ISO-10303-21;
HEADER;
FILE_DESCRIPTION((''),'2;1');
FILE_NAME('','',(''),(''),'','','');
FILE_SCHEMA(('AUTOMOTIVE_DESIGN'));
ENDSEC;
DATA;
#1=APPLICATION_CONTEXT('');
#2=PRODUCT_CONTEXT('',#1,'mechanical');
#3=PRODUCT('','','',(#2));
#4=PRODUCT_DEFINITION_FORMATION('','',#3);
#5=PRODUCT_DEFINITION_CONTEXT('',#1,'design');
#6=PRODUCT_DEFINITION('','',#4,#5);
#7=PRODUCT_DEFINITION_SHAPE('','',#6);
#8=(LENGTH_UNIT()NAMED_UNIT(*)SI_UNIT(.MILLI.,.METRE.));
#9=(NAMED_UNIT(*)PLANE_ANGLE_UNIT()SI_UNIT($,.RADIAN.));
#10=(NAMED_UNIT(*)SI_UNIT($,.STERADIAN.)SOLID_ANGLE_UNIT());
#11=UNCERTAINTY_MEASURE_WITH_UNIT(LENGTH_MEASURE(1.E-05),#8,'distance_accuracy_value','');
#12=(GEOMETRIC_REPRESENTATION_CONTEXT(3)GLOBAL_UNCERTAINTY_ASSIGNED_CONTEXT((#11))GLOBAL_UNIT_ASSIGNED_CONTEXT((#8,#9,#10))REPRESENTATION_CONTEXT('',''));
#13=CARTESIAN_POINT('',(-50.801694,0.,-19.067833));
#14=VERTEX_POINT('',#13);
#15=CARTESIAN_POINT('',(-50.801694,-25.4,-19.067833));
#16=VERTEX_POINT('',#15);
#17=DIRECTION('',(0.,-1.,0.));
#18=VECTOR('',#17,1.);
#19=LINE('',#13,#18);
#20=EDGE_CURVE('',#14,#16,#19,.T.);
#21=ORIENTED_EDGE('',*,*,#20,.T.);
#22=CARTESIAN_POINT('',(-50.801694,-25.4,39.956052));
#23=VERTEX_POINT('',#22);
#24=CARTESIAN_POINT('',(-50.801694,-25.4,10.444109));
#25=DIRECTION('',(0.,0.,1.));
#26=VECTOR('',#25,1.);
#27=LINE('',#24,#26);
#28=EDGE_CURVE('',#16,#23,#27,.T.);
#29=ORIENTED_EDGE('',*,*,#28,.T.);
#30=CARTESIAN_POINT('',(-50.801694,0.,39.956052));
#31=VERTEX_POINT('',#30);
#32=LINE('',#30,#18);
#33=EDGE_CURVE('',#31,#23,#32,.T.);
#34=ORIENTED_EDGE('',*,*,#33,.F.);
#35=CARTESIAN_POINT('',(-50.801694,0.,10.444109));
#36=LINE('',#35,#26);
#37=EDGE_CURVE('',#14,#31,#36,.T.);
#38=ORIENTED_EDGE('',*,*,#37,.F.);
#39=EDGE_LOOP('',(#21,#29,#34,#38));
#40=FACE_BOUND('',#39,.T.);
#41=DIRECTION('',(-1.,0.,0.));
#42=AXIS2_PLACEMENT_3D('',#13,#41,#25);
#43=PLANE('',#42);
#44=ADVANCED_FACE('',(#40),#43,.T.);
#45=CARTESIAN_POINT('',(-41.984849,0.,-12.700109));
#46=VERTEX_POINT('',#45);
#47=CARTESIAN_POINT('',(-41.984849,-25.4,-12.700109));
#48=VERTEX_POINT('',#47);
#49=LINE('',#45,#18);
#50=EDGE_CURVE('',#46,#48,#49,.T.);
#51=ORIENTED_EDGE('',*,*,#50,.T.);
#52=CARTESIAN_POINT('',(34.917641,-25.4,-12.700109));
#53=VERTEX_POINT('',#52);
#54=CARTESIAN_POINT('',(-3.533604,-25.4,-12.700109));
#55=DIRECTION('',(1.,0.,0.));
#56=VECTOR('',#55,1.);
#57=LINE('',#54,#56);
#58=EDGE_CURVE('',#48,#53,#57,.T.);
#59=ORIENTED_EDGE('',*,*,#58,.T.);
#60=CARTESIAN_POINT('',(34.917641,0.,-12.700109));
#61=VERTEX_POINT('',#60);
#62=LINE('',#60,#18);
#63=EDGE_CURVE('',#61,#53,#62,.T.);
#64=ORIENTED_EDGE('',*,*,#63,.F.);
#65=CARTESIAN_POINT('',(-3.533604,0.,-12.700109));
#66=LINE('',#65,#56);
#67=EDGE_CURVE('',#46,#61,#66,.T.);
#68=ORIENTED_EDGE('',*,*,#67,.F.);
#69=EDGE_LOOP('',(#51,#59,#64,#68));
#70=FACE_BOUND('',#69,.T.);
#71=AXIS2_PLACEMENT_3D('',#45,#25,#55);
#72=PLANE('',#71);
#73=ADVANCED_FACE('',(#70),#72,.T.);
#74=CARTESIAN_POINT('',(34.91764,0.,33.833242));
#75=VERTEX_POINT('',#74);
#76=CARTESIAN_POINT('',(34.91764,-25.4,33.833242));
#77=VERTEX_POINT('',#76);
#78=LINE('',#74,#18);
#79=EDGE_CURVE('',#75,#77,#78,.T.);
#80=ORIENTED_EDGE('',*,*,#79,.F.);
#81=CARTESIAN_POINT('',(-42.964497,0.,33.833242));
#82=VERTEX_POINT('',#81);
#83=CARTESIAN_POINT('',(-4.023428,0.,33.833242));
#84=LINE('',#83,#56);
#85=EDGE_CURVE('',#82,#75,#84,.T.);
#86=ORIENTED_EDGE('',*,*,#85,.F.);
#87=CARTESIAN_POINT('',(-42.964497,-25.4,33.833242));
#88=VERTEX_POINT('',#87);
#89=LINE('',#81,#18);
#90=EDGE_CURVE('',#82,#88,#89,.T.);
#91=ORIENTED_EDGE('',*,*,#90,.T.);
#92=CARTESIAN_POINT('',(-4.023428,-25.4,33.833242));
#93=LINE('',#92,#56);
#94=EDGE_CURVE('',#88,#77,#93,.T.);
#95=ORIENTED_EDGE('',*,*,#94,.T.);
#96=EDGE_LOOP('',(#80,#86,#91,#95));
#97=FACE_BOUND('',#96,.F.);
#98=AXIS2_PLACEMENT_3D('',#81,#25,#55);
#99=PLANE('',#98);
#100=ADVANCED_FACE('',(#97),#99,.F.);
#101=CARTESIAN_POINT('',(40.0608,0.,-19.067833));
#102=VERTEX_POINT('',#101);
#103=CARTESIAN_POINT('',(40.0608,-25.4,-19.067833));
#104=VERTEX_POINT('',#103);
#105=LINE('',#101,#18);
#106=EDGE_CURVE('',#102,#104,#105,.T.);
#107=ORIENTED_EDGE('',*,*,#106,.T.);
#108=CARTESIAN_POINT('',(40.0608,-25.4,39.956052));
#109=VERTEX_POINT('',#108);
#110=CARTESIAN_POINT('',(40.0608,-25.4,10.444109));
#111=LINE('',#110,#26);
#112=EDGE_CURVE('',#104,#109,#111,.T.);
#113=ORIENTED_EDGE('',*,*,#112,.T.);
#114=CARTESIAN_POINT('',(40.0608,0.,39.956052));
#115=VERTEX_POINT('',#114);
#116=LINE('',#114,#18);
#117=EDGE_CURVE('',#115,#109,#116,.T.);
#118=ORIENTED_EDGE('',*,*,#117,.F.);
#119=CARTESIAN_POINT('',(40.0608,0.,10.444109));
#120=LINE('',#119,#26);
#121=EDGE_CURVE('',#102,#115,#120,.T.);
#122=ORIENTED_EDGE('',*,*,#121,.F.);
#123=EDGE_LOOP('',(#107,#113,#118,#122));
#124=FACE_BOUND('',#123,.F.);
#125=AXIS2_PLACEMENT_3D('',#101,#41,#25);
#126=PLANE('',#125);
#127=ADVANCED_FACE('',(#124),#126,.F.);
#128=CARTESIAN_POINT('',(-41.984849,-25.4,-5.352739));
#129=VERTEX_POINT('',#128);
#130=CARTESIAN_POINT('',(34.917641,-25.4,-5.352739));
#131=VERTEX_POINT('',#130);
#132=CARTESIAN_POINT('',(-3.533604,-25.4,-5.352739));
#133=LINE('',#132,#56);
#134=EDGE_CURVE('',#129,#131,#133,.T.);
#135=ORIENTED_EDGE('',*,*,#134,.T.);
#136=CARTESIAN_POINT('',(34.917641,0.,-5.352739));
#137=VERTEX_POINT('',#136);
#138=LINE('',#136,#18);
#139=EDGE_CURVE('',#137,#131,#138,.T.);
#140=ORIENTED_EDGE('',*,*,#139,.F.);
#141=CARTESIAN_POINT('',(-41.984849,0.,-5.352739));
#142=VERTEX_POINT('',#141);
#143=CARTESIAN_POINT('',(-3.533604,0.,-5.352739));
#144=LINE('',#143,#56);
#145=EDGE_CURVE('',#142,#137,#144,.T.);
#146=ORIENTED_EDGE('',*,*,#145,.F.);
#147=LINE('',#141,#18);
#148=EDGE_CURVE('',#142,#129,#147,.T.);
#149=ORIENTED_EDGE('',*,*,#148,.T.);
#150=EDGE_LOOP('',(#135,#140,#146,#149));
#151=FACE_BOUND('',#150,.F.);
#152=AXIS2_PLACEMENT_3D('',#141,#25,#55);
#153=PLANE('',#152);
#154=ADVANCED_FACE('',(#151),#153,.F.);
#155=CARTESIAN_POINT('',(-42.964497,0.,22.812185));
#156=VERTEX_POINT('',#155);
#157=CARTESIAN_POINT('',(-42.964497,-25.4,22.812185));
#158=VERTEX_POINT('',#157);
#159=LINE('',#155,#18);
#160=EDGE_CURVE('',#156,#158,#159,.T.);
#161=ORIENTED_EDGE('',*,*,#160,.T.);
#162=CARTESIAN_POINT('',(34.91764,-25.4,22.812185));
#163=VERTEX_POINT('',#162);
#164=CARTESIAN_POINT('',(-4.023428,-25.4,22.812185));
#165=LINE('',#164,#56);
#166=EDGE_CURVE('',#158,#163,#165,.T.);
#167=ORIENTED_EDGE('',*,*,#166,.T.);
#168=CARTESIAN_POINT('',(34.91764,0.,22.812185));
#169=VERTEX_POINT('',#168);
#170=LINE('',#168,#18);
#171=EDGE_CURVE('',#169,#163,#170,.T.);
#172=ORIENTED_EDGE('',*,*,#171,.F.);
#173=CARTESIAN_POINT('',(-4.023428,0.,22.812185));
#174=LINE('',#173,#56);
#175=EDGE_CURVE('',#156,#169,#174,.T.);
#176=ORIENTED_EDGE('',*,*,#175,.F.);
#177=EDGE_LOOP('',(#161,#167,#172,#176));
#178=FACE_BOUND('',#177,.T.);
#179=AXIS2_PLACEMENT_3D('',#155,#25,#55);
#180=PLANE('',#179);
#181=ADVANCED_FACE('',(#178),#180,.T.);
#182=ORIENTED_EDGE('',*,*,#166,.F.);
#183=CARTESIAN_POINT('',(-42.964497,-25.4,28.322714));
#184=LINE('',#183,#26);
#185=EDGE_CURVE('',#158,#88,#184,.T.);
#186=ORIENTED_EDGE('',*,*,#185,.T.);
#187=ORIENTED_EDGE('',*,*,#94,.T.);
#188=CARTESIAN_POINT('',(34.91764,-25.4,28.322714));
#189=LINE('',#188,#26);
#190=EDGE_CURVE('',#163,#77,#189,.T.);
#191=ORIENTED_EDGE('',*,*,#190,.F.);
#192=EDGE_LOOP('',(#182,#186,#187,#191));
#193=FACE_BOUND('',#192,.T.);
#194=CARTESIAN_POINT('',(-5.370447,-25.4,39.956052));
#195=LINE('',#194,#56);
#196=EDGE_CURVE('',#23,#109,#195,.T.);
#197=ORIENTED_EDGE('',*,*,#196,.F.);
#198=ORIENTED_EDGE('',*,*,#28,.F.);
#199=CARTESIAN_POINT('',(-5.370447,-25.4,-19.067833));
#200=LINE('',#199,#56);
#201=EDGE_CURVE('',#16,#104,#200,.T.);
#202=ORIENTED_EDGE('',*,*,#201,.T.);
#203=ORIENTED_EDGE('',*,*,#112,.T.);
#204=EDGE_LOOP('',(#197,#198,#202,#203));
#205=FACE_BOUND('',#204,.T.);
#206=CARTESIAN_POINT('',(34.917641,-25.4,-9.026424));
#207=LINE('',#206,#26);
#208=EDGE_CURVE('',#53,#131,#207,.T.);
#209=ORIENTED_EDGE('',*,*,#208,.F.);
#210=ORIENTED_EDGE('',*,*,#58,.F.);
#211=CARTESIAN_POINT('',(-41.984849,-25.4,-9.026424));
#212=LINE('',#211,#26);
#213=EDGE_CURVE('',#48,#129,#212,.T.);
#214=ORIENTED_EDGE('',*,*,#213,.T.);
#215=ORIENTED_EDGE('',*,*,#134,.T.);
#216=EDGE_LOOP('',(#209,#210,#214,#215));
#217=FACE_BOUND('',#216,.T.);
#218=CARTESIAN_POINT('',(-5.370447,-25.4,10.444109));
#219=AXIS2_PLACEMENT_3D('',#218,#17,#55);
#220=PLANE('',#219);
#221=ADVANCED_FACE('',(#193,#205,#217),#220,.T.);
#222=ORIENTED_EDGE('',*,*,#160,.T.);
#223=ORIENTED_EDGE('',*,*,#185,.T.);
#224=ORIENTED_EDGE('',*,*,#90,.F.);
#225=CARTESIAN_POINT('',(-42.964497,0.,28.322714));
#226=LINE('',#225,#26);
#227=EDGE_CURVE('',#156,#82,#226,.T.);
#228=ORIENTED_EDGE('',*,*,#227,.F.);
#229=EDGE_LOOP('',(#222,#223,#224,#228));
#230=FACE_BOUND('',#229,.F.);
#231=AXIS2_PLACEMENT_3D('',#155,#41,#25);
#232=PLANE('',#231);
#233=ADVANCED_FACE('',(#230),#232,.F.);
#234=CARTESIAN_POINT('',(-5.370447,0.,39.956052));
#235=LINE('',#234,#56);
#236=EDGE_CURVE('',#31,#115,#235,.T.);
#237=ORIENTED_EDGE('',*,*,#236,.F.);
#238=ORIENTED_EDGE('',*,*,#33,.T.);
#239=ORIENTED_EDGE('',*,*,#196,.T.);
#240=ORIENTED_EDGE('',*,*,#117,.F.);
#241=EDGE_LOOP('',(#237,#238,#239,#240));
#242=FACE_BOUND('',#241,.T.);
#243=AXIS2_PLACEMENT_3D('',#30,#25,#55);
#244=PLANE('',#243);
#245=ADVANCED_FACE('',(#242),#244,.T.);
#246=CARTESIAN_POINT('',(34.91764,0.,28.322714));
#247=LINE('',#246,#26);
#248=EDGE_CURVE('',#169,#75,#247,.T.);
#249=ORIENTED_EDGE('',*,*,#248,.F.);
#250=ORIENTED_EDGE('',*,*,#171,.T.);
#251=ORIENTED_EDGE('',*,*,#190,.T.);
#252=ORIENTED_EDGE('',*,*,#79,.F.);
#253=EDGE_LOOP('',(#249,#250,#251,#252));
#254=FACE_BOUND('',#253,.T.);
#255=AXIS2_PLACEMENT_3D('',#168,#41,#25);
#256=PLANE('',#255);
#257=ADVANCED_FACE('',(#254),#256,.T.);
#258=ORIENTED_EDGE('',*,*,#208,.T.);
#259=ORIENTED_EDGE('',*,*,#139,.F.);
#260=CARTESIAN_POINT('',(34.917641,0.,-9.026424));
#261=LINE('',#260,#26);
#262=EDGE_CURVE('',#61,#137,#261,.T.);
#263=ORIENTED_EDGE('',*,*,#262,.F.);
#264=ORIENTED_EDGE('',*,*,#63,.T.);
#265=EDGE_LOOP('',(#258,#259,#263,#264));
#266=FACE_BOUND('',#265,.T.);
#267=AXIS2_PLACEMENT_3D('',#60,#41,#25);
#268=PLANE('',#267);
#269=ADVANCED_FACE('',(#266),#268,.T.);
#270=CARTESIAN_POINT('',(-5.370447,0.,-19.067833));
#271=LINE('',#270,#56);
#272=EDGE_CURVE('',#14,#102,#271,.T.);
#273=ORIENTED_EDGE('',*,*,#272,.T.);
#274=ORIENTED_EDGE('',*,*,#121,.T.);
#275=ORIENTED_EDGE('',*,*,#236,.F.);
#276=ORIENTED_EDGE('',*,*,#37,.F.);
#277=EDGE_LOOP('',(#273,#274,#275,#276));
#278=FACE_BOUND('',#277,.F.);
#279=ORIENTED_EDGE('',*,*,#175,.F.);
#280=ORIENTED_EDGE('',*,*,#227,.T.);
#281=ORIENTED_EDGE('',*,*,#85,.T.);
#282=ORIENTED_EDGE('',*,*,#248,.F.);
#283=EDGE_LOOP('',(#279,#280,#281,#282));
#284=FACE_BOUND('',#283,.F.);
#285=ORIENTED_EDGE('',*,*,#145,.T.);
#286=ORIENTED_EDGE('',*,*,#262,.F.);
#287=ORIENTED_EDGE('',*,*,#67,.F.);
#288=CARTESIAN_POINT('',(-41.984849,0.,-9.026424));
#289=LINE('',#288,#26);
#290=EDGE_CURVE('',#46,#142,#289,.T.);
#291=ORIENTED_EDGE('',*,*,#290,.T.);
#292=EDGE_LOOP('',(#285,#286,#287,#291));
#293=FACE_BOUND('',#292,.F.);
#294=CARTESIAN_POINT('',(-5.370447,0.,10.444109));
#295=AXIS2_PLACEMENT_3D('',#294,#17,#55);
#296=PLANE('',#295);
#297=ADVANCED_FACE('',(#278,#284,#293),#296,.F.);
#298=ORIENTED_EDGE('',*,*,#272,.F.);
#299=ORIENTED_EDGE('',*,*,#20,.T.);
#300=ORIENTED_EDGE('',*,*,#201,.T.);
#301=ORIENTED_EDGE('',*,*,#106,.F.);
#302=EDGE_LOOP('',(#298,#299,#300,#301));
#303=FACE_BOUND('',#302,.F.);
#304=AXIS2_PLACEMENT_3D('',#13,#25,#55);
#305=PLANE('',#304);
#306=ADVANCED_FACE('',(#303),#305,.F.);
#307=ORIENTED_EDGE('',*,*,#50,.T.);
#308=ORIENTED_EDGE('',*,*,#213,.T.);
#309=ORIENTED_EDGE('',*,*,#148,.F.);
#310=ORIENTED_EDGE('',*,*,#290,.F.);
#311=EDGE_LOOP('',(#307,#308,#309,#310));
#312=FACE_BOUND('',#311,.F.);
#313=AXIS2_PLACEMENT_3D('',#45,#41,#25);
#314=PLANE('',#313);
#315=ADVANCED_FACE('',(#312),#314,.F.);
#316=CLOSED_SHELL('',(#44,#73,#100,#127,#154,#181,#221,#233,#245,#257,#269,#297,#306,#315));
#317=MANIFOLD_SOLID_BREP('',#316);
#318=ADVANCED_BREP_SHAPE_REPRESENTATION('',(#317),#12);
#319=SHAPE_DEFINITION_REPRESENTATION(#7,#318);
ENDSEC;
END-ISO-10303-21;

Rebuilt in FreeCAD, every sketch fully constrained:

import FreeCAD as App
import Part
import Sketcher
from FreeCAD import Vector
Q = App.Units.Quantity


def add_polygon(sketch, points):
    """Adds a closed chain of lines whose ends are joined by coincident constraints."""
    first, n = sketch.GeometryCount, len(points)
    for a, b in zip(points, points[1:] + points[:1]):
        sketch.addGeometry(Part.LineSegment(App.Vector(*a, 0), App.Vector(*b, 0)), False)
    for i in range(n):
        sketch.addConstraint(Sketcher.Constraint("Coincident", first + i, 2, first + (i + 1) % n, 1))

doc = App.newDocument("Part")
body = doc.addObject("PartDesign::Body", "Body")

# Sketch on XZ plane
sketch1 = body.newObject("Sketcher::SketchObject", "Sketch")
sketch1.AttachmentSupport = (doc.getObject("XZ_Plane"), [""])
sketch1.MapMode = "FlatFace"
add_polygon(sketch1, [(-51, 40), (-51, -19), (40, -19), (40, 40)])  # lines 0-3
add_polygon(sketch1, [(35, -13), (-42, -13), (-42, -5), (35, -5)])  # lines 4-7
add_polygon(sketch1, [(35, 23), (-43, 23), (-43, 34), (35, 34)])  # lines 8-11
sketch1.addConstraint([
    Sketcher.Constraint("Vertical", 0),
    Sketcher.Constraint("Horizontal", 1),
    Sketcher.Constraint("Vertical", 2),
    Sketcher.Constraint("Horizontal", 3),
    Sketcher.Constraint("Horizontal", 4),
    Sketcher.Constraint("Vertical", 5),
    Sketcher.Constraint("Horizontal", 6),
    Sketcher.Constraint("Vertical", 7),
    Sketcher.Constraint("Horizontal", 8),
    Sketcher.Constraint("Vertical", 9),
    Sketcher.Constraint("Horizontal", 10),
    Sketcher.Constraint("Vertical", 11),
    Sketcher.Constraint("Vertical", 7, 2, 10, 2),
    Sketcher.Constraint("DistanceY", 9, 1, 9, 2, Q("0.4338999 in")),
    Sketcher.Constraint("DistanceX", 4, 2, 4, 1, 76.90249),
    Sketcher.Constraint("DistanceY", 5, 1, 5, 2, 7.347371),
    Sketcher.Constraint("DistanceX", -1, 1, 1, 2, 40.0608),
    Sketcher.Constraint("DistanceX", 1, 1, 1, 2, 90.862494),
    Sketcher.Constraint("DistanceX", 8, 2, 8, 1, 77.882137),
    Sketcher.Constraint("DistanceY", 0, 2, 0, 1, 59.023885),
    Sketcher.Constraint("DistanceY", -1, 1, 2, 2, 39.956052),
    Sketcher.Constraint("DistanceX", 4, 2, -1, 1, 41.984849),
    Sketcher.Constraint("DistanceY", 4, 2, -1, 1, 12.700109),
    Sketcher.Constraint("DistanceY", 0, 2, 8, 2, 41.880019),
])
pad1 = body.newObject("PartDesign::Pad", "Pad")
pad1.Profile = sketch1
pad1.Length = Q("1 in")

# Sketch on XZ plane
sketch2 = body.newObject("Sketcher::SketchObject", "Sketch001")
sketch2.AttachmentSupport = (doc.getObject("XZ_Plane"), [""])
sketch2.MapMode = "FlatFace"
add_polygon(sketch2, [(-39, 16), (-39, 9), (-14, 9), (-14, 16)])  # lines 0-3
sketch2.addConstraint([
    Sketcher.Constraint("Vertical", 0),
    Sketcher.Constraint("Horizontal", 1),
    Sketcher.Constraint("Vertical", 2),
    Sketcher.Constraint("Horizontal", 3),
    Sketcher.Constraint("DistanceY", 0, 2, 0, 1, 7.40096),
    Sketcher.Constraint("DistanceX", 1, 1, 1, 2, 24.723197),
    Sketcher.Constraint("DistanceX", 0, 2, -1, 1, 39.011043),
    Sketcher.Constraint("DistanceY", -1, 1, 0, 2, 8.645605),
])
pocket1 = body.newObject("PartDesign::Pocket", "Pocket")
pocket1.Profile = sketch2
pocket1.Length = Q("3.22 in")

doc.recompute()
